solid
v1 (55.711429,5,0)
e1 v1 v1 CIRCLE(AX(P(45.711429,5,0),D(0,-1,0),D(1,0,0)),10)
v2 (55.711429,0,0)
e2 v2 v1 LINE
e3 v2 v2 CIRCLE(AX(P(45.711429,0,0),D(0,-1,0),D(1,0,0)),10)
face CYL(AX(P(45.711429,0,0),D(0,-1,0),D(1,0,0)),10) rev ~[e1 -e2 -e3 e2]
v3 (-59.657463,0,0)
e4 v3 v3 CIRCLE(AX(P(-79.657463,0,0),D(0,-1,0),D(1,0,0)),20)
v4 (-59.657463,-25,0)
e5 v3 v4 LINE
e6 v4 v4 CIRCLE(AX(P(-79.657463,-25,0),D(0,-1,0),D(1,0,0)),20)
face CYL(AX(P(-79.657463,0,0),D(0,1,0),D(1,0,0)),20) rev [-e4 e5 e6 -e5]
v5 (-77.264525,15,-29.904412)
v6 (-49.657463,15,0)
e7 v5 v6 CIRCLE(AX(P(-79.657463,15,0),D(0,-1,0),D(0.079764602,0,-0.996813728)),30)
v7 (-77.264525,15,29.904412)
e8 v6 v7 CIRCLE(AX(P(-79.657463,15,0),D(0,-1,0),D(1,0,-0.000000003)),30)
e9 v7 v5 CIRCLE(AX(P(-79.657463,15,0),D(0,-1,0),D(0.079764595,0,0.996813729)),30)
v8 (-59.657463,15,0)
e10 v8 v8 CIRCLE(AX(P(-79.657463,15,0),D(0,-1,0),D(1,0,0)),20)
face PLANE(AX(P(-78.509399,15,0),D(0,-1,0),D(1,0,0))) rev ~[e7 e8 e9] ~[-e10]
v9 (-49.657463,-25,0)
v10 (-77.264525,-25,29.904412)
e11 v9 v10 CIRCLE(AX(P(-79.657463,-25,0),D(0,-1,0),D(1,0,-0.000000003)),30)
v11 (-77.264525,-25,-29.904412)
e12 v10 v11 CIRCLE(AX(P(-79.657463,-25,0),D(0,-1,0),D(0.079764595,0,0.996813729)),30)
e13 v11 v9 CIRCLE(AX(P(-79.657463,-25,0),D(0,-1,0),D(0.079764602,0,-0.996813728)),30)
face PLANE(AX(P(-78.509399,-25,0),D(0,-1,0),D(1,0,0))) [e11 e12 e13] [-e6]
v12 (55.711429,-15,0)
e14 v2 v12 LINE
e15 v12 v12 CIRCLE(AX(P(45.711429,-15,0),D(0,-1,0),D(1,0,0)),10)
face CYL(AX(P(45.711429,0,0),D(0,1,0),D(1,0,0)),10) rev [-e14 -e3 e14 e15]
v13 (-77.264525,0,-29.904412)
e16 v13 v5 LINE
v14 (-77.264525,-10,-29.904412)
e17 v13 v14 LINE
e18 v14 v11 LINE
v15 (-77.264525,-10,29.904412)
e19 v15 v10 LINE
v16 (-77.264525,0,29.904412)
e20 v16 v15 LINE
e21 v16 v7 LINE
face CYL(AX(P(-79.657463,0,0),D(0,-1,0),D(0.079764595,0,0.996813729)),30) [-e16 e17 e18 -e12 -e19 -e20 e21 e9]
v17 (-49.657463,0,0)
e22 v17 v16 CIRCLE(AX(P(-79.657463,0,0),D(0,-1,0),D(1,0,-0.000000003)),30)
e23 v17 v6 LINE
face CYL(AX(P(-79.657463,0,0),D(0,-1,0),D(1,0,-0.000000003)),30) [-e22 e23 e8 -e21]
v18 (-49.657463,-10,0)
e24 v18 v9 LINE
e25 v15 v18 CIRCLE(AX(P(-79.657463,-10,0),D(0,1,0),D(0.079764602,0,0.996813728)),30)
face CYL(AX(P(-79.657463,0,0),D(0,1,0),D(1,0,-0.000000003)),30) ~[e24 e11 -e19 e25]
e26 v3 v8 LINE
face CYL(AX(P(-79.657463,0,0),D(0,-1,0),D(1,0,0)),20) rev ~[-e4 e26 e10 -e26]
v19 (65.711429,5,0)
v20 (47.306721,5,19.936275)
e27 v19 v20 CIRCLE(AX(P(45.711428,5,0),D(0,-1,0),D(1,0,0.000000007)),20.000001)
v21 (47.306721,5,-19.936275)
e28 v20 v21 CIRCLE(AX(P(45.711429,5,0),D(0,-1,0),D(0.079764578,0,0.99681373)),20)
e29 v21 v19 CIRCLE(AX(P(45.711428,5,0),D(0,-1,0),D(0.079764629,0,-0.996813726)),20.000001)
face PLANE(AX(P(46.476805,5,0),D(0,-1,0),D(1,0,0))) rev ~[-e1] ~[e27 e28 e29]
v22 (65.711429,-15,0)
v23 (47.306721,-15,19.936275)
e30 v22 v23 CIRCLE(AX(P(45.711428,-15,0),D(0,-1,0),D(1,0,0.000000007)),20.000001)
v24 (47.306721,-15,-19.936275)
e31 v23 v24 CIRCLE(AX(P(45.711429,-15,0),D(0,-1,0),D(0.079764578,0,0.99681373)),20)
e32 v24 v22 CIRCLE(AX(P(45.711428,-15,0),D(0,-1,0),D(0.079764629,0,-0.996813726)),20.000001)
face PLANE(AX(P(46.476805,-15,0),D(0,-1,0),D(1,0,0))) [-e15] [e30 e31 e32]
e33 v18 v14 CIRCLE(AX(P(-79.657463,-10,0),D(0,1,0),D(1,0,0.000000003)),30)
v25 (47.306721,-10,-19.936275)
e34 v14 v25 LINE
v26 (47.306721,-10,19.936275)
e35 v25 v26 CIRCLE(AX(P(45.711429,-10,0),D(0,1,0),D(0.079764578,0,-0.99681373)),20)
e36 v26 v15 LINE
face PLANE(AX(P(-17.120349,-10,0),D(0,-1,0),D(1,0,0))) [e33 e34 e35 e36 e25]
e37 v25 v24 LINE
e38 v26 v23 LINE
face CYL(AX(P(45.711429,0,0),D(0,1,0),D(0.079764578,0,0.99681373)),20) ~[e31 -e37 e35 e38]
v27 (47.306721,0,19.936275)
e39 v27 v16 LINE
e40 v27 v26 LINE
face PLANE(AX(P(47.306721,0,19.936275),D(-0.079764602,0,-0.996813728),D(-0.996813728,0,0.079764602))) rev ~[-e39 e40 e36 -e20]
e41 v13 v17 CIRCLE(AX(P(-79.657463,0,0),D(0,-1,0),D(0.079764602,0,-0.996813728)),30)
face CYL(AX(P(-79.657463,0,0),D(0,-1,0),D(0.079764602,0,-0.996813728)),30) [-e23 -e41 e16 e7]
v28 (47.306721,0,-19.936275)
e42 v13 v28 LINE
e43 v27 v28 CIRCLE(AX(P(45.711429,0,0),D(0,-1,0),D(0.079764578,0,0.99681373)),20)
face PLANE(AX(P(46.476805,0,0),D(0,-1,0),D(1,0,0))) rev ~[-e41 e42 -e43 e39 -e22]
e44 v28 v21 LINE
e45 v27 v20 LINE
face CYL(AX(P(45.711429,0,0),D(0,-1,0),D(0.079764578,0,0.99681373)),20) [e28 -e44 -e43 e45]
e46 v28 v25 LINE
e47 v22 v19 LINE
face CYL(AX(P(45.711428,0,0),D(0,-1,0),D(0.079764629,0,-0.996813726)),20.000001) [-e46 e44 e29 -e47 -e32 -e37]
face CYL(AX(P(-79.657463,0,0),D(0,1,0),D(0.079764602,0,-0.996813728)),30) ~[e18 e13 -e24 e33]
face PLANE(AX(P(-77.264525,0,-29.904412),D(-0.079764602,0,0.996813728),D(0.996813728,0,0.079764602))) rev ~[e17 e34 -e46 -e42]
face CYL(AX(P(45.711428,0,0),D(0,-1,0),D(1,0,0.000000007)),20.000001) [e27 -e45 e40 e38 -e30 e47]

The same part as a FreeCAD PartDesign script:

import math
import FreeCAD as App
import Part
import Sketcher
from FreeCAD import Vector
Q = App.Units.Quantity

doc = App.newDocument("Part")
params = doc.addObject("Spreadsheet::Sheet", "Params")
for row, (alias, value) in enumerate([
    ("sketch1_radius", "30 mm"),
    ("sketch1_radius2", "20 mm"),
    ("pad1_length", "10 mm"),
    ("sketch2_diameter", "40 mm"),
    ("sketch2_radius", "30 mm"),
    ("pad2_length", "25 mm"),
    ("sketch3_diameter", "40 mm"),
    ("sketch3_radius", "30 mm"),
    ("pad3_length", "15 mm"),
    ("sketch4_diameter", "20 mm"),
    ("sketch4_radius", "20.000001 mm"),
    ("pad4_length", "15 mm"),
    ("sketch5_diameter", "20 mm"),
    ("sketch5_radius", "20.000001 mm"),
    ("pad5_length", "5 mm"),
], start=1):
    params.set(f"A{row}", alias)
    params.set(f"B{row}", "=" + value)
    params.setAlias(f"B{row}", alias)

body = doc.addObject("PartDesign::Body", "Body")

# Sketch on XZ plane
sketch1 = body.newObject("Sketcher::SketchObject", "Sketch")
sketch1.AttachmentSupport = (doc.getObject("XZ_Plane"), [""])
sketch1.MapMode = "FlatFace"
sketch1.addGeometry(Part.ArcOfCircle(Part.Circle(Vector(-80, 0, 0), Vector(0, 0, 1), 30), math.radians(0), math.radians(85)), False)
sketch1.addGeometry(Part.ArcOfCircle(Part.Circle(Vector(-80, 0, 0), Vector(0, 0, 1), 30), math.radians(-85), math.radians(0)), False)
sketch1.addGeometry(Part.LineSegment(Vector(-77, -30, 0), Vector(47, -20, 0)), False)
sketch1.addGeometry(Part.ArcOfCircle(Part.Circle(Vector(46, 0, 0), Vector(0, 0, 1), 20), math.radians(85), math.radians(275)), False)
sketch1.addGeometry(Part.LineSegment(Vector(47, 20, 0), Vector(-77, 30, 0)), False)
sketch1.addConstraint(Sketcher.Constraint("Tangent", 0, 1, 1, 2))
sketch1.addConstraint(Sketcher.Constraint("Tangent", 1, 1, 2, 1))
sketch1.addConstraint(Sketcher.Constraint("Tangent", 2, 2, 3, 2))
sketch1.addConstraint(Sketcher.Constraint("Tangent", 3, 1, 4, 1))
sketch1.addConstraint(Sketcher.Constraint("Tangent", 4, 2, 0, 2))
sketch1.addConstraint(Sketcher.Constraint("Equal", 0, 1))
sketch1.addConstraint(Sketcher.Constraint("Symmetric", 2, 2, 3, 1, -1))
sketch1.addConstraint(Sketcher.Constraint("PointOnObject", 0, 1, -1))
sketch1.addConstraint(Sketcher.Constraint("Radius", 0, Q("30 mm")))
sketch1.addConstraint(Sketcher.Constraint("Radius", 3, Q("20 mm")))
sketch1.addConstraint(Sketcher.Constraint("DistanceX", -1, 1, 3, 3, Q("45.711429 mm")))
sketch1.addConstraint(Sketcher.Constraint("DistanceX", -1, 1, 2, 2, Q("47.306721 mm")))
sketch1.setExpression("Constraints[8]", "Params.sketch1_radius")
sketch1.setExpression("Constraints[9]", "Params.sketch1_radius2")
pad1 = body.newObject("PartDesign::Pad", "Pad")
pad1.Profile = sketch1
pad1.setExpression("Length", "Params.pad1_length")

# Sketch on XZ plane
sketch2 = body.newObject("Sketcher::SketchObject", "Sketch001")
sketch2.AttachmentSupport = (doc.getObject("XZ_Plane"), [""])
sketch2.MapMode = "FlatFace"
sketch2.addGeometry(Part.ArcOfCircle(Part.Circle(Vector(-80, 0, 0), Vector(0, 0, 1), 30), math.radians(-85), math.radians(0)), False)
sketch2.addGeometry(Part.ArcOfCircle(Part.Circle(Vector(-80, 0, 0), Vector(0, 0, 1), 30), math.radians(0), math.radians(85)), False)
sketch2.addGeometry(Part.ArcOfCircle(Part.Circle(Vector(-80, 0, 0), Vector(0, 0, 1), 30), math.radians(85), math.radians(275)), False)
sketch2.addGeometry(Part.Circle(Vector(-80, 0, 0), Vector(0, 0, 1), 20), False)
sketch2.addConstraint(Sketcher.Constraint("Tangent", 0, 2, 1, 1))
sketch2.addConstraint(Sketcher.Constraint("Tangent", 1, 2, 2, 1))
sketch2.addConstraint(Sketcher.Constraint("Tangent", 2, 2, 0, 1))
sketch2.addConstraint(Sketcher.Constraint("Coincident", 3, 3, 0, 3))
sketch2.addConstraint(Sketcher.Constraint("Symmetric", 1, 2, 2, 2, -1))
sketch2.addConstraint(Sketcher.Constraint("PointOnObject", 0, 2, -1))
sketch2.addConstraint(Sketcher.Constraint("Diameter", 3, Q("40 mm")))
sketch2.addConstraint(Sketcher.Constraint("Radius", 0, Q("30 mm")))
sketch2.addConstraint(Sketcher.Constraint("DistanceY", -1, 1, 1, 2, Q("29.904412 mm")))
sketch2.addConstraint(Sketcher.Constraint("DistanceX", 0, 3, -1, 1, Q("79.657463 mm")))
sketch2.setExpression("Constraints[6]", "Params.sketch2_diameter")
sketch2.setExpression("Constraints[7]", "Params.sketch2_radius")
pad2 = body.newObject("PartDesign::Pad", "Pad001")
pad2.Profile = sketch2
pad2.setExpression("Length", "Params.pad2_length")

# Sketch on XZ plane
sketch3 = body.newObject("Sketcher::SketchObject", "Sketch002")
sketch3.AttachmentSupport = (doc.getObject("XZ_Plane"), [""])
sketch3.MapMode = "FlatFace"
sketch3.addGeometry(Part.ArcOfCircle(Part.Circle(Vector(-80, 0, 0), Vector(0, 0, 1), 30), math.radians(-85), math.radians(0)), False)
sketch3.addGeometry(Part.ArcOfCircle(Part.Circle(Vector(-80, 0, 0), Vector(0, 0, 1), 30), math.radians(0), math.radians(85)), False)
sketch3.addGeometry(Part.ArcOfCircle(Part.Circle(Vector(-80, 0, 0), Vector(0, 0, 1), 30), math.radians(85), math.radians(275)), False)
sketch3.addGeometry(Part.Circle(Vector(-80, 0, 0), Vector(0, 0, 1), 20), False)
sketch3.addConstraint(Sketcher.Constraint("Tangent", 0, 2, 1, 1))
sketch3.addConstraint(Sketcher.Constraint("Tangent", 1, 2, 2, 1))
sketch3.addConstraint(Sketcher.Constraint("Tangent", 2, 2, 0, 1))
sketch3.addConstraint(Sketcher.Constraint("Coincident", 3, 3, 0, 3))
sketch3.addConstraint(Sketcher.Constraint("Symmetric", 1, 2, 2, 2, -1))
sketch3.addConstraint(Sketcher.Constraint("PointOnObject", 0, 2, -1))
sketch3.addConstraint(Sketcher.Constraint("Diameter", 3, Q("40 mm")))
sketch3.addConstraint(Sketcher.Constraint("Radius", 0, Q("30 mm")))
sketch3.addConstraint(Sketcher.Constraint("DistanceY", -1, 1, 1, 2, Q("29.904412 mm")))
sketch3.addConstraint(Sketcher.Constraint("DistanceX", 0, 3, -1, 1, Q("79.657463 mm")))
sketch3.setExpression("Constraints[6]", "Params.sketch3_diameter")
sketch3.setExpression("Constraints[7]", "Params.sketch3_radius")
pad3 = body.newObject("PartDesign::Pad", "Pad002")
pad3.Profile = sketch3
pad3.setExpression("Length", "Params.pad3_length")
pad3.Reversed = True

# Sketch on XZ plane
sketch4 = body.newObject("Sketcher::SketchObject", "Sketch003")
sketch4.AttachmentSupport = (doc.getObject("XZ_Plane"), [""])
sketch4.MapMode = "FlatFace"
sketch4.addGeometry(Part.ArcOfCircle(Part.Circle(Vector(46, 0, 0), Vector(0, 0, 1), 20), math.radians(0), math.radians(85)), False)
sketch4.addGeometry(Part.ArcOfCircle(Part.Circle(Vector(46, 0, 0), Vector(0, 0, 1), 20), math.radians(85), math.radians(275)), False)
sketch4.addGeometry(Part.ArcOfCircle(Part.Circle(Vector(46, 0, 0), Vector(0, 0, 1), 20), math.radians(-85), math.radians(0)), False)
sketch4.addGeometry(Part.Circle(Vector(46, 0, 0), Vector(0, 0, 1), 10), False)
sketch4.addConstraint(Sketcher.Constraint("Tangent", 0, 2, 1, 1))
sketch4.addConstraint(Sketcher.Constraint("Tangent", 1, 2, 2, 1))
sketch4.addConstraint(Sketcher.Constraint("Tangent", 2, 2, 0, 1))
sketch4.addConstraint(Sketcher.Constraint("Coincident", 3, 3, 0, 3))
sketch4.addConstraint(Sketcher.Constraint("Symmetric", 0, 2, 1, 2, -1))
sketch4.addConstraint(Sketcher.Constraint("PointOnObject", 2, 2, -1))
sketch4.addConstraint(Sketcher.Constraint("Diameter", 3, Q("20 mm")))
sketch4.addConstraint(Sketcher.Constraint("Radius", 0, Q("20.000001 mm")))
sketch4.addConstraint(Sketcher.Constraint("DistanceX", -1, 1, 0, 3, Q("45.711428 mm")))
sketch4.addConstraint(Sketcher.Constraint("DistanceX", -1, 1, 0, 2, Q("47.306721 mm")))
sketch4.setExpression("Constraints[6]", "Params.sketch4_diameter")
sketch4.setExpression("Constraints[7]", "Params.sketch4_radius")
pad4 = body.newObject("PartDesign::Pad", "Pad003")
pad4.Profile = sketch4
pad4.setExpression("Length", "Params.pad4_length")

# Sketch on XZ plane
sketch5 = body.newObject("Sketcher::SketchObject", "Sketch004")
sketch5.AttachmentSupport = (doc.getObject("XZ_Plane"), [""])
sketch5.MapMode = "FlatFace"
sketch5.addGeometry(Part.ArcOfCircle(Part.Circle(Vector(46, 0, 0), Vector(0, 0, 1), 20), math.radians(0), math.radians(85)), False)
sketch5.addGeometry(Part.ArcOfCircle(Part.Circle(Vector(46, 0, 0), Vector(0, 0, 1), 20), math.radians(85), math.radians(275)), False)
sketch5.addGeometry(Part.ArcOfCircle(Part.Circle(Vector(46, 0, 0), Vector(0, 0, 1), 20), math.radians(-85), math.radians(0)), False)
sketch5.addGeometry(Part.Circle(Vector(46, 0, 0), Vector(0, 0, 1), 10), False)
sketch5.addConstraint(Sketcher.Constraint("Tangent", 0, 2, 1, 1))
sketch5.addConstraint(Sketcher.Constraint("Tangent", 1, 2, 2, 1))
sketch5.addConstraint(Sketcher.Constraint("Tangent", 2, 2, 0, 1))
sketch5.addConstraint(Sketcher.Constraint("Coincident", 3, 3, 0, 3))
sketch5.addConstraint(Sketcher.Constraint("Symmetric", 0, 2, 1, 2, -1))
sketch5.addConstraint(Sketcher.Constraint("PointOnObject", 2, 2, -1))
sketch5.addConstraint(Sketcher.Constraint("Diameter", 3, Q("20 mm")))
sketch5.addConstraint(Sketcher.Constraint("Radius", 0, Q("20.000001 mm")))
sketch5.addConstraint(Sketcher.Constraint("DistanceX", -1, 1, 0, 3, Q("45.711428 mm")))
sketch5.addConstraint(Sketcher.Constraint("DistanceX", -1, 1, 0, 2, Q("47.306721 mm")))
sketch5.setExpression("Constraints[6]", "Params.sketch5_diameter")
sketch5.setExpression("Constraints[7]", "Params.sketch5_radius")
pad5 = body.newObject("PartDesign::Pad", "Pad004")
pad5.Profile = sketch5
pad5.setExpression("Length", "Params.pad5_length")
pad5.Reversed = True

doc.recompute()
